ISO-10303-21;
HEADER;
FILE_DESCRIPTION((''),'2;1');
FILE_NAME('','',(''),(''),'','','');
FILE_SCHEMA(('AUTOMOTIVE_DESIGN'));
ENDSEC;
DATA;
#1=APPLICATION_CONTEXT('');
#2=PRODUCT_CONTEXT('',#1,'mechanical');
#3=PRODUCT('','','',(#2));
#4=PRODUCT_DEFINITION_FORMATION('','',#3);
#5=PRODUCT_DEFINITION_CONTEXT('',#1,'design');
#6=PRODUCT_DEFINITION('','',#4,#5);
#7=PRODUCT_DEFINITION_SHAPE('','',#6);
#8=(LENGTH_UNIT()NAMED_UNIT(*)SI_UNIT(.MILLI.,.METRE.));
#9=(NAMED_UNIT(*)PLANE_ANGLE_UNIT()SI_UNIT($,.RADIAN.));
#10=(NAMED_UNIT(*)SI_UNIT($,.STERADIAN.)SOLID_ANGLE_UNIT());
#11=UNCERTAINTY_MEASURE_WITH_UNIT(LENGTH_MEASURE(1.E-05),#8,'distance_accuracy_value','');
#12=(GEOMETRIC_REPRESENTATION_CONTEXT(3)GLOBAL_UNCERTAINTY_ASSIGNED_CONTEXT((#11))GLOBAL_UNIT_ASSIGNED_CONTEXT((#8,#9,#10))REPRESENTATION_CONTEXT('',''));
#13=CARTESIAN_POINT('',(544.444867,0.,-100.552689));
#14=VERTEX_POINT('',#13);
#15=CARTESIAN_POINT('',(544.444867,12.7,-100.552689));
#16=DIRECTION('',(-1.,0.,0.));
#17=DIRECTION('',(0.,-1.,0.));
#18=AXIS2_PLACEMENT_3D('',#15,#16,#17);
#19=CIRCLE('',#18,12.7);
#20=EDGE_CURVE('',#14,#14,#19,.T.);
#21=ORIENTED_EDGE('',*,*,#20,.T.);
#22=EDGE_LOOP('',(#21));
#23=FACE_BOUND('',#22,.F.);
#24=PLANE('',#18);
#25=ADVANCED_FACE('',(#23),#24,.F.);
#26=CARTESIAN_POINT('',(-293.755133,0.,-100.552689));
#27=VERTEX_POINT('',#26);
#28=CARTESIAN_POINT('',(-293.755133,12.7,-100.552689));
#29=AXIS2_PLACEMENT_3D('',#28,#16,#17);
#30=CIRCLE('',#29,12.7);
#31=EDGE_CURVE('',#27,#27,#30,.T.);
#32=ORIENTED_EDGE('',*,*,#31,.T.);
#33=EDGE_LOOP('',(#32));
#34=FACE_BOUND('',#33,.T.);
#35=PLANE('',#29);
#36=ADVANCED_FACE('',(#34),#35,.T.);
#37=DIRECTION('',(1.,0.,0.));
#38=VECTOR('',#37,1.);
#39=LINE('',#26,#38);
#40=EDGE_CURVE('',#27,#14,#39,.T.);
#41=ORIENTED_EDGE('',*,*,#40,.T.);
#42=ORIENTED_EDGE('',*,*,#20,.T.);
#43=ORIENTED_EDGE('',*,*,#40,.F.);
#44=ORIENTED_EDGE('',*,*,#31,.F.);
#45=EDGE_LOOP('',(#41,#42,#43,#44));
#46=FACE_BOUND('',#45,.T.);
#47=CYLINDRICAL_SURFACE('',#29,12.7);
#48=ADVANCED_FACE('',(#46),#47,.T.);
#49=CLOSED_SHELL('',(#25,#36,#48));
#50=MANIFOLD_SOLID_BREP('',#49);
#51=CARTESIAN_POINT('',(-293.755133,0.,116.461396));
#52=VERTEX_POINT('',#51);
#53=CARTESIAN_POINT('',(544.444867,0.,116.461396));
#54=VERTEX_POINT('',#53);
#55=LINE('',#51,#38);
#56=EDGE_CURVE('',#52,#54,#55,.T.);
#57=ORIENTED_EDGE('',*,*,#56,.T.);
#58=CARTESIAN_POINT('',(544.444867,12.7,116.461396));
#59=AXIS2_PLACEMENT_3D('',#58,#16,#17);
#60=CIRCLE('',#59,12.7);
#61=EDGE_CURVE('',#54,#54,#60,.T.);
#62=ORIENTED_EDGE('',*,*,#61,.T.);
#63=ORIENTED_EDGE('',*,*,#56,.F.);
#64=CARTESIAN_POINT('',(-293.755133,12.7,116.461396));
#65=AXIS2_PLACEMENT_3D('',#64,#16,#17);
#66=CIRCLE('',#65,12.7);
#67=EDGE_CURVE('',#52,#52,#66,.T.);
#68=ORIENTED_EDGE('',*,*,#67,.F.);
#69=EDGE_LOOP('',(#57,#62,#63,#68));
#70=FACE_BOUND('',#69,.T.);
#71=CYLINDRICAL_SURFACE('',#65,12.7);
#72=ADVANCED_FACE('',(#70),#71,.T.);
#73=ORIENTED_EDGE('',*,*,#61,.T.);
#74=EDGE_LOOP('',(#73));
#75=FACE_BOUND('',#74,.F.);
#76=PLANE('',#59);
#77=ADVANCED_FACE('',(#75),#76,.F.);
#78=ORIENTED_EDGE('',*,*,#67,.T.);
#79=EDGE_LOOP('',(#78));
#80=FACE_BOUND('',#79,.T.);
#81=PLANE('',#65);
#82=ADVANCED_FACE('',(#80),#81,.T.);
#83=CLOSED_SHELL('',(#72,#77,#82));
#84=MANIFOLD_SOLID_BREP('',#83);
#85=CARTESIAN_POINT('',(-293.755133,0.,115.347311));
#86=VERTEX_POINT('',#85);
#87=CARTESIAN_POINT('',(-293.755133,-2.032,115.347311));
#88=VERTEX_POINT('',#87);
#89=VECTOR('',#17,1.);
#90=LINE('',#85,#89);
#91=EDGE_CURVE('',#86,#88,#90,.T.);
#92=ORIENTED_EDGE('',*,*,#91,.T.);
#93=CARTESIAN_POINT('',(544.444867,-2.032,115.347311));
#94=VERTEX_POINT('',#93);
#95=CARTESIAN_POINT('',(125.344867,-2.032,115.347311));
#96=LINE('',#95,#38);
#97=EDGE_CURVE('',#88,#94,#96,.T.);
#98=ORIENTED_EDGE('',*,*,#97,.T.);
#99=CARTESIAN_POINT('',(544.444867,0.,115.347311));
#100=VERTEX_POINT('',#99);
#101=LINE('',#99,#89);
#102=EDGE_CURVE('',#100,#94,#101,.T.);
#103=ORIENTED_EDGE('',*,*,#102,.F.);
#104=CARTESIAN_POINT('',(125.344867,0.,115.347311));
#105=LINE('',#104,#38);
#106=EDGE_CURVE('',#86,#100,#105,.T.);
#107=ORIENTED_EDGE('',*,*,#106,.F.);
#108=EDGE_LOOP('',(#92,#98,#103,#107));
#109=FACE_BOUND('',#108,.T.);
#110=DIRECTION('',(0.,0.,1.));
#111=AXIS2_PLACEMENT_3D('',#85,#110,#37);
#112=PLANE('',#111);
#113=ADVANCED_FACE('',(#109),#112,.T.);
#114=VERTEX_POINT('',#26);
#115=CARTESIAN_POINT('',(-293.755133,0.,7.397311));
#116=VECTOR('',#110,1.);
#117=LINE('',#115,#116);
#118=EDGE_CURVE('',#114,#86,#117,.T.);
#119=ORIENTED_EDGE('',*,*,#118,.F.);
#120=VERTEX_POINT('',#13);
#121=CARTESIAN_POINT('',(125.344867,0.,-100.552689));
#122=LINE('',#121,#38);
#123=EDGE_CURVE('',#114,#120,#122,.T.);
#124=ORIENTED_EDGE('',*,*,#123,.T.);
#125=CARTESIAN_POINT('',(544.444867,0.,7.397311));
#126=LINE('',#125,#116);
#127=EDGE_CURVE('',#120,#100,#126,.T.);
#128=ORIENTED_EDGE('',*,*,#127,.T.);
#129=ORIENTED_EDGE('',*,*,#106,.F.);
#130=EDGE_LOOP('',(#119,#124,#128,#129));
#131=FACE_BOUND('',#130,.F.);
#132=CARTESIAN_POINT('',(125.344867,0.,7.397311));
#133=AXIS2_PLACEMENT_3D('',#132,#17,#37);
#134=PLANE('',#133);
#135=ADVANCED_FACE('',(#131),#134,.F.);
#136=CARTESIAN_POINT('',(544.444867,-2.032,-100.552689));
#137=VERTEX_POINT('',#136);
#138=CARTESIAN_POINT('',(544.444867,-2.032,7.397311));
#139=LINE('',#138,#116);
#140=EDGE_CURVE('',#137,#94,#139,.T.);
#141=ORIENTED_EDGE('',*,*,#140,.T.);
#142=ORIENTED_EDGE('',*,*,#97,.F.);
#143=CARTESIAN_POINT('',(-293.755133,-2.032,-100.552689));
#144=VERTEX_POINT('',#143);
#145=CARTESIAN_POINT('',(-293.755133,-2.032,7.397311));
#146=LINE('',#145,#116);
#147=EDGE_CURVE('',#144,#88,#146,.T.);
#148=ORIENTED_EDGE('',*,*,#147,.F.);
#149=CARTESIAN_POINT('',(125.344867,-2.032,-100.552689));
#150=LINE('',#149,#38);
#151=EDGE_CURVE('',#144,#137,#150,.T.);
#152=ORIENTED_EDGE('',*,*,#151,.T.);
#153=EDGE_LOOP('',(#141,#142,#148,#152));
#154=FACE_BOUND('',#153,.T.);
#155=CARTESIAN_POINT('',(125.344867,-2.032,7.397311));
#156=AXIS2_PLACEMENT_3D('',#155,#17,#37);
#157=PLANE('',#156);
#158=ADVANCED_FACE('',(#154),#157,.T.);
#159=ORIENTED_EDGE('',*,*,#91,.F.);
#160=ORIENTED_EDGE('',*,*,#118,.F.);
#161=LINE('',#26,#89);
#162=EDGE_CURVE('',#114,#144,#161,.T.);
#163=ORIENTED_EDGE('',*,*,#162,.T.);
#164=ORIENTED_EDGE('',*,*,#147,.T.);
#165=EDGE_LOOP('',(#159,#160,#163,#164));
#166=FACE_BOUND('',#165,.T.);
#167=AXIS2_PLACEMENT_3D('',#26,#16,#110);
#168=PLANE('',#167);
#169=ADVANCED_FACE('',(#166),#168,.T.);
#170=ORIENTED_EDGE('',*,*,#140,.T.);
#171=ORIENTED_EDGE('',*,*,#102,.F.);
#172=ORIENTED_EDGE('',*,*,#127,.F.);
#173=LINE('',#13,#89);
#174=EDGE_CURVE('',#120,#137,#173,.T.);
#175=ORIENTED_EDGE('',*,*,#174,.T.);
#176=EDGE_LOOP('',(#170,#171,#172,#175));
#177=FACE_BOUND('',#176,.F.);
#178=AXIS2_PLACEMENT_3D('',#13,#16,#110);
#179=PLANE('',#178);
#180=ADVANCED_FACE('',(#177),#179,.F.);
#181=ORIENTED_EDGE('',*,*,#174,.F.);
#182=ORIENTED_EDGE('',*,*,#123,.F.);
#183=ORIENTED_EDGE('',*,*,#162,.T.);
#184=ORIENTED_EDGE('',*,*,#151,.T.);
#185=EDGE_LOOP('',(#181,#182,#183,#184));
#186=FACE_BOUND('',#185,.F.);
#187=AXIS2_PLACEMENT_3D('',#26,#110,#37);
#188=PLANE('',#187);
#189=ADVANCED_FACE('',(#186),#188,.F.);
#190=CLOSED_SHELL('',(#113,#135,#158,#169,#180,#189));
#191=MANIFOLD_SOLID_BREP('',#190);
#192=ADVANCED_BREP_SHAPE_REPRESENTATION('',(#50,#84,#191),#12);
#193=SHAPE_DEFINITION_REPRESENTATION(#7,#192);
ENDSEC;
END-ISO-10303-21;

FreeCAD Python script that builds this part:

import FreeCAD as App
import Part
import Sketcher

V = App.Vector
Q = App.Units.Quantity


def add_polygon(sketch, points):
    """Adds a closed chain of lines whose ends are joined by coincident constraints."""
    first, n = sketch.GeometryCount, len(points)
    for a, b in zip(points, points[1:] + points[:1]):
        sketch.addGeometry(Part.LineSegment(App.Vector(*a, 0), App.Vector(*b, 0)), False)
    for i in range(n):
        sketch.addConstraint(Sketcher.Constraint("Coincident", first + i, 2, first + (i + 1) % n, 1))

doc = App.newDocument("Part")
body = doc.addObject("PartDesign::Body", "Body")

# Sketch on XZ plane
sketch1 = body.newObject("Sketcher::SketchObject", "Sketch")
sketch1.AttachmentSupport = (doc.getObject("XZ_Plane"), [""])
sketch1.MapMode = "FlatFace"
add_polygon(sketch1, [(-294, 115), (-294, -101), (544, -101), (544, 115)])  # lines 0-3
sketch1.addConstraint([
    Sketcher.Constraint("Vertical", 0),
    Sketcher.Constraint("Horizontal", 1),
    Sketcher.Constraint("Vertical", 2),
    Sketcher.Constraint("Horizontal", 3),
    Sketcher.Constraint("DistanceX", 1, 1, 1, 2, Q("33 in")),
    Sketcher.Constraint("DistanceY", 0, 2, 0, 1, Q("8.5 in")),
    Sketcher.Constraint("DistanceY", 0, 2, -1, 1, 100.552689),
    Sketcher.Constraint("DistanceX", 0, 2, -1, 1, 293.755133),
])
pad1 = body.newObject("PartDesign::Pad", "Pad")
pad1.Profile = sketch1
pad1.Length = Q("0.08 in")
body2 = doc.addObject("PartDesign::Body", "Body001")
body2.AllowCompound = True

# Sketch on YZ plane
sketch2 = body2.newObject("Sketcher::SketchObject", "Sketch001")
sketch2.AttachmentSupport = (doc.getObject("YZ_Plane001"), [""])
sketch2.MapMode = "FlatFace"
sketch2.AttachmentOffset = App.Placement(V(0, 0, -293.755133), App.Rotation())
sketch2.addGeometry([
    Part.Circle(V(13, -101, 0), V(0, 0, 1), 13),
    Part.Circle(V(13, 116, 0), V(0, 0, 1), 13),
], False)
sketch2.addConstraint([
    Sketcher.Constraint("Equal", 0, 1),
    Sketcher.Constraint("Vertical", 0, 3, 1, 3),
    Sketcher.Constraint("Diameter", 0, Q("1 in")),
    Sketcher.Constraint("DistanceX", -1, 1, 0, 3, Q("0.5 in")),
    Sketcher.Constraint("DistanceY", 0, 3, -1, 1, 100.552689),
    Sketcher.Constraint("DistanceY", -1, 1, 1, 3, 116.461396),
])
pad2 = body2.newObject("PartDesign::Pad", "Pad001")
pad2.Profile = sketch2
pad2.Length = Q("33 in")

doc.recompute()
